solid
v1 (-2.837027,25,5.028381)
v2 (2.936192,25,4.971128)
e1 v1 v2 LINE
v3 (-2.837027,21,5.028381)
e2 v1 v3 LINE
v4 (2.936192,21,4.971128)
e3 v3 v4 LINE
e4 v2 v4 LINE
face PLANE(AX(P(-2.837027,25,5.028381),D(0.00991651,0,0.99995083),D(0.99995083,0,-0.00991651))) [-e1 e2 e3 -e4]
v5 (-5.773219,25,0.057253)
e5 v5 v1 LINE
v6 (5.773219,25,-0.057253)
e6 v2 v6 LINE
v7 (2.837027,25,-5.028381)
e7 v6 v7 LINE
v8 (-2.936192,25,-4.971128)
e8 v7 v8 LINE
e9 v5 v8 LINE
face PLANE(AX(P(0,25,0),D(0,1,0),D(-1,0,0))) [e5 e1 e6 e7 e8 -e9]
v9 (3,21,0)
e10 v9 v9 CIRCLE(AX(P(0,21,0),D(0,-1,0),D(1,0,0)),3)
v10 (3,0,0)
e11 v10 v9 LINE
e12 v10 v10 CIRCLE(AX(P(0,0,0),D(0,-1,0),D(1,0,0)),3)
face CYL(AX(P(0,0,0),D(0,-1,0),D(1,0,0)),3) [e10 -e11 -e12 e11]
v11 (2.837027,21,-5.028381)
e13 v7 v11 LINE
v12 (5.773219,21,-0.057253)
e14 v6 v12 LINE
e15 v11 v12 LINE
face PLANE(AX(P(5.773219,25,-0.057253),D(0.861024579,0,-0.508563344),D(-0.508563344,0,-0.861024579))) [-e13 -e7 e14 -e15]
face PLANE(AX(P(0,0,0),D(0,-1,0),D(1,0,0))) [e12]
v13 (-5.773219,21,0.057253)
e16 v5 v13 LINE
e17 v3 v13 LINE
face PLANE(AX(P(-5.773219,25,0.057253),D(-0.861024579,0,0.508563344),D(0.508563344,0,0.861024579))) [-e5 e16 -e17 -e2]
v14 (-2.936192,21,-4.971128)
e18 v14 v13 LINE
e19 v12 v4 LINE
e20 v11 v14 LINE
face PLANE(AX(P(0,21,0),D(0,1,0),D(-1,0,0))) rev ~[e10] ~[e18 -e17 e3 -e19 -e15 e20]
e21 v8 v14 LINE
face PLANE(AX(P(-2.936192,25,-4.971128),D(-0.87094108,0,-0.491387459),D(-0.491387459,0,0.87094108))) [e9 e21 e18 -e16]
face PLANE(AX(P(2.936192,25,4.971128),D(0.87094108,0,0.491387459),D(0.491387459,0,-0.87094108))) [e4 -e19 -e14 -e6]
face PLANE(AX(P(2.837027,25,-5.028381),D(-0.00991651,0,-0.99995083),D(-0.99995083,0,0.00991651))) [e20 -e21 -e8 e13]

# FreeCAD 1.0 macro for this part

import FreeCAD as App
import Part
import Sketcher


def add_polygon(sketch, points):
    """Adds a closed chain of lines whose ends are joined by coincident constraints."""
    first, n = sketch.GeometryCount, len(points)
    for a, b in zip(points, points[1:] + points[:1]):
        sketch.addGeometry(Part.LineSegment(App.Vector(*a, 0), App.Vector(*b, 0)), False)
    for i in range(n):
        sketch.addConstraint(Sketcher.Constraint("Coincident", first + i, 2, first + (i + 1) % n, 1))

doc = App.newDocument("Part")
params = doc.addObject("Spreadsheet::Sheet", "Params")
for row, (alias, value) in enumerate([
    ("sketch1_diameter", "10 mm"),
    ("pad1_length", "25 mm"),
    ("sketch2_diameter", "10 mm"),
    ("sketch2_diameter2", "6 mm"),
    ("pocket1_length", "21 mm"),
    ("pad2_length", "4 mm"),
], start=1):
    params.set(f"A{row}", alias)
    params.set(f"B{row}", "=" + value)
    params.setAlias(f"B{row}", alias)

body = doc.addObject("PartDesign::Body", "Body")

# Sketch on XZ plane
sketch1 = body.newObject("Sketcher::SketchObject", "Sketch")
sketch1.AttachmentSupport = (doc.getObject("XZ_Plane"), [""])
sketch1.MapMode = "FlatFace"
sketch1.addGeometry(Part.Circle(App.Vector(0, 0, 0), App.Vector(0, 0, 1), 5), False)
sketch1.addConstraint([
    Sketcher.Constraint("Coincident", 0, 3, -1, 1),
    Sketcher.Constraint("Diameter", 0, 10.0),
])
sketch1.setExpression("Constraints[1]", "Params.sketch1_diameter")
pad1 = body.newObject("PartDesign::Pad", "Pad")
pad1.Profile = sketch1
pad1.setExpression("Length", "Params.pad1_length")
pad1.Reversed = True

# Sketch on XZ plane
sketch2 = body.newObject("Sketcher::SketchObject", "Sketch001")
sketch2.AttachmentSupport = (doc.getObject("XZ_Plane"), [""])
sketch2.MapMode = "FlatFace"
sketch2.addGeometry([
    Part.Circle(App.Vector(0, 0, 0), App.Vector(0, 0, 1), 5),
    Part.Circle(App.Vector(0, 0, 0), App.Vector(0, 0, 1), 3),
], False)
sketch2.addConstraint([
    Sketcher.Constraint("Coincident", 0, 3, -1, 1),
    Sketcher.Constraint("Coincident", 1, 3, -1, 1),
    Sketcher.Constraint("Diameter", 0, 10.0),
    Sketcher.Constraint("Diameter", 1, 6.0),
])
sketch2.setExpression("Constraints[2]", "Params.sketch2_diameter")
sketch2.setExpression("Constraints[3]", "Params.sketch2_diameter2")
pocket1 = body.newObject("PartDesign::Pocket", "Pocket")
pocket1.Profile = sketch2
pocket1.setExpression("Length", "Params.pocket1_length")

# Sketch on XZ plane
sketch3 = body.newObject("Sketcher::SketchObject", "Sketch002")
sketch3.AttachmentSupport = (doc.getObject("XZ_Plane"), [""])
sketch3.MapMode = "FlatFace"
sketch3.AttachmentOffset = App.Placement(App.Vector(0, 0, -25), App.Rotation())
add_polygon(sketch3, [(-3, -5), (-6, 0), (-3, 5), (3, 5), (6, 0), (3, -5)])  # lines 0-5
sketch3.addConstraint([
    Sketcher.Constraint("Symmetric", 0, 2, 3, 2, -1, 1),
    Sketcher.Constraint("Symmetric", 1, 2, 4, 2, -1, 1),
    Sketcher.Constraint("Symmetric", 2, 2, 5, 2, -1, 1),
    Sketcher.Constraint("Equal", 0, 1),
    Sketcher.Constraint("Equal", 1, 2),
    Sketcher.Constraint("DistanceX", 0, 2, -1, 1, 5.773219),
    Sketcher.Constraint("DistanceY", -1, 1, 1, 2, 5.028381),
    Sketcher.Constraint("DistanceY", -1, 1, 2, 2, 4.971128),
    Sketcher.Constraint("DistanceY", 0, 2, 1, 2, 4.971128),
])
pad2 = body.newObject("PartDesign::Pad", "Pad001")
pad2.Profile = sketch3
pad2.setExpression("Length", "Params.pad2_length")

doc.recompute()
